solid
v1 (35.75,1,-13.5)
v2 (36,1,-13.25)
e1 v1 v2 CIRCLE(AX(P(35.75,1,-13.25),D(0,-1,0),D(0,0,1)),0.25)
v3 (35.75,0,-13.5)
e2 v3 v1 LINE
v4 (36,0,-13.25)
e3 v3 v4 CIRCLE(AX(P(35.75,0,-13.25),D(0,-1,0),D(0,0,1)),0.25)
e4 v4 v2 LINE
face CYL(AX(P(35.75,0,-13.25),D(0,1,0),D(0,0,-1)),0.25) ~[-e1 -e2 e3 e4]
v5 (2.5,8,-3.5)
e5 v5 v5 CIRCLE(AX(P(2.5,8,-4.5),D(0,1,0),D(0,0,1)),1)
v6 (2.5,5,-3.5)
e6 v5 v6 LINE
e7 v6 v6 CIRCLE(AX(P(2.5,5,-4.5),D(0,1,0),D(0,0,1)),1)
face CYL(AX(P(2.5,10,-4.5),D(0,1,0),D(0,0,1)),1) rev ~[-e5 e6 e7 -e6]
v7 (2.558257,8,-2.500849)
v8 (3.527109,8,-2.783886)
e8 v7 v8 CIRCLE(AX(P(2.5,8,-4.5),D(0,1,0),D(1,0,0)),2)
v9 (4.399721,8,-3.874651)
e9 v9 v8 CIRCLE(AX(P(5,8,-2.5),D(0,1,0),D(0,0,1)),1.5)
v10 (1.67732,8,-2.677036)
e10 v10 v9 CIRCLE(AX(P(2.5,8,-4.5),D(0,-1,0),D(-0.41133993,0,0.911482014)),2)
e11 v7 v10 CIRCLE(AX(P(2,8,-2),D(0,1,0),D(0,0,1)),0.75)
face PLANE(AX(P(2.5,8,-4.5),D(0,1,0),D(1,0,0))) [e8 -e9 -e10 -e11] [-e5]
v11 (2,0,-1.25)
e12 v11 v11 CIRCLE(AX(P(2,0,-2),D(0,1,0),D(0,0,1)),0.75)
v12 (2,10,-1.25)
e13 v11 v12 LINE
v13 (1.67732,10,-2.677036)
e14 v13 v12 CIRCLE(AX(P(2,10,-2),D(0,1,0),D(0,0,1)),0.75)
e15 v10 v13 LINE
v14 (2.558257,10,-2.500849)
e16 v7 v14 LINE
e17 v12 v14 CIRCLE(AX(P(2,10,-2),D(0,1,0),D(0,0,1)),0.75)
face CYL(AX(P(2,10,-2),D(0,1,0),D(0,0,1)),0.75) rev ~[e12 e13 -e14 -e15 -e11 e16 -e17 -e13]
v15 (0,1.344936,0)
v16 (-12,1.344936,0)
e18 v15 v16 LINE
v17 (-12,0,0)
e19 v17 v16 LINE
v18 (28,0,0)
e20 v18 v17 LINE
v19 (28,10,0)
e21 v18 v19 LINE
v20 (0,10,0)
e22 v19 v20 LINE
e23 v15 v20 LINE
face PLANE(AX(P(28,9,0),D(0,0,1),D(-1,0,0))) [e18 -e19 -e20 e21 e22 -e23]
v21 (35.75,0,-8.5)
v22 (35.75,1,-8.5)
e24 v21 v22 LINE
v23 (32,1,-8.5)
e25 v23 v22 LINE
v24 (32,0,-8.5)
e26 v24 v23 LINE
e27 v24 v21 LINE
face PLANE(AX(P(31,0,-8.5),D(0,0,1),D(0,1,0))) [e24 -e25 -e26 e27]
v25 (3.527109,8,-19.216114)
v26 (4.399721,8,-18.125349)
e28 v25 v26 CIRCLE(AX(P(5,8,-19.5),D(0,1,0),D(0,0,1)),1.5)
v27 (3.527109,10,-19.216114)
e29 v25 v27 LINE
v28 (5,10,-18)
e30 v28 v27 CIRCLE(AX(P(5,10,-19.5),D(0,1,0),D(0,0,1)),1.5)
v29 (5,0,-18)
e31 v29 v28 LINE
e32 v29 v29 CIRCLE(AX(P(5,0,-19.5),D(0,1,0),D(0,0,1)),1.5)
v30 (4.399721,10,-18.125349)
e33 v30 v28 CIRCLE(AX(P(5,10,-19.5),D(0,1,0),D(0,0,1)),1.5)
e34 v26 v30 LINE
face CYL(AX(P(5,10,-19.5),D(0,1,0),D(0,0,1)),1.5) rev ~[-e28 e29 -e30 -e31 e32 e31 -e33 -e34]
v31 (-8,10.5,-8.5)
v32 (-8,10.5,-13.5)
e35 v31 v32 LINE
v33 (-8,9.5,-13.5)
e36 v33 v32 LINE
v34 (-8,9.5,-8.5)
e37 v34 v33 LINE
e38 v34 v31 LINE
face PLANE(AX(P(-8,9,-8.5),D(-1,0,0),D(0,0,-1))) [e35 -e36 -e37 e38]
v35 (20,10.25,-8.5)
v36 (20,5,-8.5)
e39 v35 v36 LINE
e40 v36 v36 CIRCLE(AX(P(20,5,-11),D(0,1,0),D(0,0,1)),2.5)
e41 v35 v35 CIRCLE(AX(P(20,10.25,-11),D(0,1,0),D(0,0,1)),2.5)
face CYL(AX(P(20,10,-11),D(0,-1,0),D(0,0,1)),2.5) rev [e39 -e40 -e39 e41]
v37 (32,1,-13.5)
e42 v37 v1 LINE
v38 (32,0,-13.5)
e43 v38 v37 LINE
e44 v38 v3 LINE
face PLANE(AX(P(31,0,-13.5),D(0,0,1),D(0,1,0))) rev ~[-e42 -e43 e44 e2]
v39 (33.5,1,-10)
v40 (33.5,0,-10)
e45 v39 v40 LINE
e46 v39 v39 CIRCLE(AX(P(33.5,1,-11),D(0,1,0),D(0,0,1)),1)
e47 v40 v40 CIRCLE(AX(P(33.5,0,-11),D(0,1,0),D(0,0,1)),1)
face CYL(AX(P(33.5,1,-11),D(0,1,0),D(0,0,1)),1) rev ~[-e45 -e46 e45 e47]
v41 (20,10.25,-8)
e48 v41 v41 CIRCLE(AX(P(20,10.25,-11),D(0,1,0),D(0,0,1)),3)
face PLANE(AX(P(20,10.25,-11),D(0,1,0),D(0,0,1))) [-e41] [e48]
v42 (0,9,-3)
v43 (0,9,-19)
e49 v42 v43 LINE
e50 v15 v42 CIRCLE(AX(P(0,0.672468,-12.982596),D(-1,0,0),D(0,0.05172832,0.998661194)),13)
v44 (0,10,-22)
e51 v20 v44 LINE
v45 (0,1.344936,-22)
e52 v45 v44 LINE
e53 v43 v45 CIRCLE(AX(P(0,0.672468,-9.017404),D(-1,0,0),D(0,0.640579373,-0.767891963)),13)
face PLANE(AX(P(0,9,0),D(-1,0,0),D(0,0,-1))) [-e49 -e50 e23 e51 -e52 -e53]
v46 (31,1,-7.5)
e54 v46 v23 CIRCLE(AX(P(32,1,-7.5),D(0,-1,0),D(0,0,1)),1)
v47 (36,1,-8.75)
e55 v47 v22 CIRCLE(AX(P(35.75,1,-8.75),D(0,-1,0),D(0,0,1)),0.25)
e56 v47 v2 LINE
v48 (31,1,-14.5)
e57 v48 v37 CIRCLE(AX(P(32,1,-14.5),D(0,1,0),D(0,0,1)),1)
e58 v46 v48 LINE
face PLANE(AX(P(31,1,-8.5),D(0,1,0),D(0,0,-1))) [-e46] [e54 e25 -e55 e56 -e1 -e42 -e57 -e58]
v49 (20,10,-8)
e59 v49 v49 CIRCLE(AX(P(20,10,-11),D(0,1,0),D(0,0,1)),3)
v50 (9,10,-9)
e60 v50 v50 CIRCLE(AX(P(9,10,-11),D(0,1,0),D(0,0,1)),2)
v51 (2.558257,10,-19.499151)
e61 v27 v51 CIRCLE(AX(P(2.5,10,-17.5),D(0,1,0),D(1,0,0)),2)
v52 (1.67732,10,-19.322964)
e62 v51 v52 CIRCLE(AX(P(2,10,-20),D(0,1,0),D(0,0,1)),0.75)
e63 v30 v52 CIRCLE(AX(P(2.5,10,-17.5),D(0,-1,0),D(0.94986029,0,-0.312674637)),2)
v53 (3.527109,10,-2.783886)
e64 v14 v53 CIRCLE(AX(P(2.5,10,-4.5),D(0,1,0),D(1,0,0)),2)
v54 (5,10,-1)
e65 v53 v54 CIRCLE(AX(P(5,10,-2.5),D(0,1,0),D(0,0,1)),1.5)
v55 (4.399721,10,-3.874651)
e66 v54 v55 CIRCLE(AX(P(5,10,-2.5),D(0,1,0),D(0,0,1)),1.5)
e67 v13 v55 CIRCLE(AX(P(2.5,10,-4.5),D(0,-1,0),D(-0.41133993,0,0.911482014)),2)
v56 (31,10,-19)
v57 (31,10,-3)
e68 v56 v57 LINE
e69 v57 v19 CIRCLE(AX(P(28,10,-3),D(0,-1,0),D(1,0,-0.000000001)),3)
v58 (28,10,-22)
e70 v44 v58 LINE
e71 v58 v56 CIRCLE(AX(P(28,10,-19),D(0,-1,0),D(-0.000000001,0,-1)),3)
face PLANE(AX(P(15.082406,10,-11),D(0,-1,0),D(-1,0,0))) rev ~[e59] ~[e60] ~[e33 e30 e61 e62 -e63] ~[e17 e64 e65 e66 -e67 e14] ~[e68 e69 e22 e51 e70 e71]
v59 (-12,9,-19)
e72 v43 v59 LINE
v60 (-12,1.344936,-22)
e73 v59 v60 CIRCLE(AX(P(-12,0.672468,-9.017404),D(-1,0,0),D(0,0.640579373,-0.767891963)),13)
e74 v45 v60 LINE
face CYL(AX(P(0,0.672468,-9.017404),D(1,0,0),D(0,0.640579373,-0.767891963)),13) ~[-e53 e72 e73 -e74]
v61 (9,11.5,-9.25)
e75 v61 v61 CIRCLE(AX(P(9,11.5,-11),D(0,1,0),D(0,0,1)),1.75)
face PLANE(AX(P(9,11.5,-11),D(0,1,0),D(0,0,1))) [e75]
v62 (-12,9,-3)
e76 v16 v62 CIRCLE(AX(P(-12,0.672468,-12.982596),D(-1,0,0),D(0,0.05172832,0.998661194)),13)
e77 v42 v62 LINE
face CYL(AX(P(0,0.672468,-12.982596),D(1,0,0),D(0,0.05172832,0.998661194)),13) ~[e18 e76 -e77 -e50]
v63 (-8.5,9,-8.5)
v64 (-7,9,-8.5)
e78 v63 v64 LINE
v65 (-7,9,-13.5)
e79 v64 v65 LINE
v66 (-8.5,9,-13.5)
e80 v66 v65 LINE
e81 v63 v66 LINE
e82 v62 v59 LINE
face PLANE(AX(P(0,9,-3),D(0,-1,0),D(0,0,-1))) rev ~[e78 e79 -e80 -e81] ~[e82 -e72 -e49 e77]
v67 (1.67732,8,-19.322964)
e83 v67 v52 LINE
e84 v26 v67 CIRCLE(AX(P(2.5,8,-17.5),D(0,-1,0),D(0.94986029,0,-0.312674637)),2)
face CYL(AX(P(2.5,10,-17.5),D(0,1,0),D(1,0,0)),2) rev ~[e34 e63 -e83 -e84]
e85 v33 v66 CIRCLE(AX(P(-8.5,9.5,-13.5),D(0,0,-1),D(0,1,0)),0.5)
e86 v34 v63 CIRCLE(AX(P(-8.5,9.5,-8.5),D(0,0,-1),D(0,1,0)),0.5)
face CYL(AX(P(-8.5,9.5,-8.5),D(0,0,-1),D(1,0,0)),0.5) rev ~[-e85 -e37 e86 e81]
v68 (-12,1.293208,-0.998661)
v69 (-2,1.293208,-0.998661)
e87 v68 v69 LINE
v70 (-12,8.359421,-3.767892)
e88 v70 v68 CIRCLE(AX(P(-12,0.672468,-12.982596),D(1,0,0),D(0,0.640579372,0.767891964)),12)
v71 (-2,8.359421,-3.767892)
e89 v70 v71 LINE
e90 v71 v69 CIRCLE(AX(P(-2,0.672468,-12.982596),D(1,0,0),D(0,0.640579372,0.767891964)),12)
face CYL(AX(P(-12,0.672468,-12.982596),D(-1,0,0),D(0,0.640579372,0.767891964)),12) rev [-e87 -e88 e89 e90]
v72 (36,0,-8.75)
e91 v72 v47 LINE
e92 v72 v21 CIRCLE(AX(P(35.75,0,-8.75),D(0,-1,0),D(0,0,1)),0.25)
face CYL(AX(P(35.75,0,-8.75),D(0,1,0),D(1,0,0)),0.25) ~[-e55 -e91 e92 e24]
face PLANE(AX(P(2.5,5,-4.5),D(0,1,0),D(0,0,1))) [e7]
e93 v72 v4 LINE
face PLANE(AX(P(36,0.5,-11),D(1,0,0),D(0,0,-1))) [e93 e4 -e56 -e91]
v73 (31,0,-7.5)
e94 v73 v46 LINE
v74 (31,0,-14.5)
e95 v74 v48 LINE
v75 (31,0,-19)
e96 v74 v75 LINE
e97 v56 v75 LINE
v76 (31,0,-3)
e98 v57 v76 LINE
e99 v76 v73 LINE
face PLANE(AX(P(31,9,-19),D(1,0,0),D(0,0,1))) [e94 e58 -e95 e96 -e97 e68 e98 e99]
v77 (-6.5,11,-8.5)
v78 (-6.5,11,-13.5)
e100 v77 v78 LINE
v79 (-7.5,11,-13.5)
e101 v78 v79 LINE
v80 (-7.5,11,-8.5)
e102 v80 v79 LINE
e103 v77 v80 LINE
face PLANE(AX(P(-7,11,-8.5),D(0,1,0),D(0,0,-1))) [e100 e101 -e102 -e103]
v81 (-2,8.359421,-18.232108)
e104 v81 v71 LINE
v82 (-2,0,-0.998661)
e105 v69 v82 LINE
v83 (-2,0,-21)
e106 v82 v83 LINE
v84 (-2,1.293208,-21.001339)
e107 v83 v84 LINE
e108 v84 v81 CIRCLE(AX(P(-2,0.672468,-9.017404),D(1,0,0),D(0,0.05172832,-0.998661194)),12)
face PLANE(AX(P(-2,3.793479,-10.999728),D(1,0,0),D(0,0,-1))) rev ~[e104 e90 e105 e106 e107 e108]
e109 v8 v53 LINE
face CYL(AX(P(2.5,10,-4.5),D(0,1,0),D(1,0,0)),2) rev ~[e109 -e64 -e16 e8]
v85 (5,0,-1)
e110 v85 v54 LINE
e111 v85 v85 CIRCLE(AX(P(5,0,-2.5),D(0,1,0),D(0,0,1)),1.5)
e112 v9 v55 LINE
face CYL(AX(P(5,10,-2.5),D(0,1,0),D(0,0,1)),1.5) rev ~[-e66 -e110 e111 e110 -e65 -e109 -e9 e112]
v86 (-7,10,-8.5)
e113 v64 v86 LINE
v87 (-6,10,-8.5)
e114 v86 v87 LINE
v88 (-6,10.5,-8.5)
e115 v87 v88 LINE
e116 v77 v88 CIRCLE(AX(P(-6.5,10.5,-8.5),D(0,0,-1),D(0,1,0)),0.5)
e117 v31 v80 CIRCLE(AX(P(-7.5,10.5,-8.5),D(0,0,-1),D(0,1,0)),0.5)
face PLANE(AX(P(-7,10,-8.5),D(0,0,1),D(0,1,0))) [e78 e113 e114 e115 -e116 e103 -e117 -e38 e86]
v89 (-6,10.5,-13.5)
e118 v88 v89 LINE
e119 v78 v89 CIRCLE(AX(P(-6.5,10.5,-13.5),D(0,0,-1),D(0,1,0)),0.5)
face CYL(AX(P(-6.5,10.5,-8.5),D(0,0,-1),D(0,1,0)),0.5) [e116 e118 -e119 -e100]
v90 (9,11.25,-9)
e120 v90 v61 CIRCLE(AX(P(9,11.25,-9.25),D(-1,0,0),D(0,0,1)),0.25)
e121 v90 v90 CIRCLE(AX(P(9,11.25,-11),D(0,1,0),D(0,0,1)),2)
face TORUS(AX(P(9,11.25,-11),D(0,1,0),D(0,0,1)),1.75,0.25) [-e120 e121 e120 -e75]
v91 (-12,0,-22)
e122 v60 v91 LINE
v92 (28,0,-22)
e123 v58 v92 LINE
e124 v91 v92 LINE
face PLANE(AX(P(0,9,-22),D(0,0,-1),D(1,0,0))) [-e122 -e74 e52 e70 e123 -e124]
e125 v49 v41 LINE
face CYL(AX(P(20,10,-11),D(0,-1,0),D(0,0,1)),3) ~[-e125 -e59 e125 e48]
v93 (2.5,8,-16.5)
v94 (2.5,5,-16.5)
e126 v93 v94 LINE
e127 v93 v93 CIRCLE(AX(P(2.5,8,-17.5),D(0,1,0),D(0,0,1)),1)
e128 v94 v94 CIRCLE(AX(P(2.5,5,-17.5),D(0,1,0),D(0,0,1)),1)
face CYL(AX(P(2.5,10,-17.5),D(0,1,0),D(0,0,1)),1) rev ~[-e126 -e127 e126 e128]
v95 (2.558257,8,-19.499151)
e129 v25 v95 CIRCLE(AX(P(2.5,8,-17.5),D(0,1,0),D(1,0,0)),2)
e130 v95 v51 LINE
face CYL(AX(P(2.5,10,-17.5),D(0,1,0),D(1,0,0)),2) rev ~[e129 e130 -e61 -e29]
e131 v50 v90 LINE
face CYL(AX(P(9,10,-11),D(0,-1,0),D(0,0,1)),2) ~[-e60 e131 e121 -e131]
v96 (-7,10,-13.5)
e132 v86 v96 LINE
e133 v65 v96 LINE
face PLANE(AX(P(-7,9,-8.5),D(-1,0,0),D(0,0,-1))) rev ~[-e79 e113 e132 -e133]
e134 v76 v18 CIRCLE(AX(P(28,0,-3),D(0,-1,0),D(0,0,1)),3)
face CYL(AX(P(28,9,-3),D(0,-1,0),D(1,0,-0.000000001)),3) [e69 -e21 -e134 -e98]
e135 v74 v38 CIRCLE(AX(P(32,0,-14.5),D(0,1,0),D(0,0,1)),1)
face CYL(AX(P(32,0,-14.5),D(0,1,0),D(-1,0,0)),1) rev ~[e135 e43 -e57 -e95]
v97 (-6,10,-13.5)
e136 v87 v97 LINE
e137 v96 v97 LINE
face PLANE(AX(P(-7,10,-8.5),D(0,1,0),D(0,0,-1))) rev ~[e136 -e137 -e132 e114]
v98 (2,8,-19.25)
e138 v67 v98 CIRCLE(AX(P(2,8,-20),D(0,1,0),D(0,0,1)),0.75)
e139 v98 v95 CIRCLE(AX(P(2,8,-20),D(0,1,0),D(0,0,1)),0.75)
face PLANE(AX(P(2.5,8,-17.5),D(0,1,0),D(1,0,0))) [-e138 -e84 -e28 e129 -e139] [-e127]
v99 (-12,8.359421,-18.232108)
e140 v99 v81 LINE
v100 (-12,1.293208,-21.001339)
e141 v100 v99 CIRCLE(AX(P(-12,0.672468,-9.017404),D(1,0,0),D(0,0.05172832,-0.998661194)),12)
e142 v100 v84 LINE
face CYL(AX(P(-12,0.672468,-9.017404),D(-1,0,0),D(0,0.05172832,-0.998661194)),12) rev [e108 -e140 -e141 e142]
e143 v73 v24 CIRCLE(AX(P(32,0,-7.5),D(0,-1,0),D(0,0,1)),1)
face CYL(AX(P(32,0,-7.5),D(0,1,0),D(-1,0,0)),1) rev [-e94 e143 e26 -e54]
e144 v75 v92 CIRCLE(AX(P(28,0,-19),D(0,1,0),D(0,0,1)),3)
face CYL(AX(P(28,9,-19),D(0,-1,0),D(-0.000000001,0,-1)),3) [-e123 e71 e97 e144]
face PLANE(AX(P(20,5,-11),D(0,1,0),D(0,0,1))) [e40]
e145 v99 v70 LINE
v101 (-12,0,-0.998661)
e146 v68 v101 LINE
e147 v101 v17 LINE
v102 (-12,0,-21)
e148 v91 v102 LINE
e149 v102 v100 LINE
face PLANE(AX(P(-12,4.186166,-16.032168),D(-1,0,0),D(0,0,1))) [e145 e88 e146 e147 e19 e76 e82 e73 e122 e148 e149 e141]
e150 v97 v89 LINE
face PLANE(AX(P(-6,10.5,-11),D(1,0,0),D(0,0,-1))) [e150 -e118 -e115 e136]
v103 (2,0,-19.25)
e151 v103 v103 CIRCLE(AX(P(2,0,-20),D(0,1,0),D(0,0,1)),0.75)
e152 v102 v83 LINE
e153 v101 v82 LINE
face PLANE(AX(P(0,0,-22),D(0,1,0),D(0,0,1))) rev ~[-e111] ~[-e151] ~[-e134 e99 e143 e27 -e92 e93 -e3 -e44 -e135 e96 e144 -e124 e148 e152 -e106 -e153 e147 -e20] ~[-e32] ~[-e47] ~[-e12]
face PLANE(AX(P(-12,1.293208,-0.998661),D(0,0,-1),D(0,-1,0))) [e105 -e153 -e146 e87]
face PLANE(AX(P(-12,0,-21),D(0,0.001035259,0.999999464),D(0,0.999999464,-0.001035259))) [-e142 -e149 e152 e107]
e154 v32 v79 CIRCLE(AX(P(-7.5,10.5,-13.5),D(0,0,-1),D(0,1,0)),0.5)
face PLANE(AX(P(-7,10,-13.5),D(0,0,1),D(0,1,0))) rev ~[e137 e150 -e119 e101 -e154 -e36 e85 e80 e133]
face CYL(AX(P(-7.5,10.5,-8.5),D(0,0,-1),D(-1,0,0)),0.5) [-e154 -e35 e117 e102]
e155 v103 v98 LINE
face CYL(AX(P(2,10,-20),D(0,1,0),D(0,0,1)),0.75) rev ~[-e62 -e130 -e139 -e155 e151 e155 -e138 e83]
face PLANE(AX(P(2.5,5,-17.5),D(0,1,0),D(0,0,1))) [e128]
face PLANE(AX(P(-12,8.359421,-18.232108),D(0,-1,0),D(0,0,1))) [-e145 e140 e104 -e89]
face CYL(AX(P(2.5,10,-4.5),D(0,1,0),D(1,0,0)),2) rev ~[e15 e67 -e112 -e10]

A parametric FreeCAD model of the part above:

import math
import FreeCAD as App
import Part
import Sketcher


def edges_at(feature, points):
    """Names of the edges that pass closest to the given points."""
    edges = feature.Shape.Edges
    near = lambda p: min(range(len(edges)), key=lambda i: edges[i].distToShape(Part.Vertex(*p))[0])
    return sorted({f"Edge{near(p) + 1}" for p in points})

doc = App.newDocument("Part")
body = doc.addObject("PartDesign::Body", "Body")

# Sketch on XZ plane
sketch1 = doc.addObject("Sketcher::SketchObject", "Sketch")
body.addObject(sketch1)
sketch1.AttachmentSupport = (doc.XZ_Plane, [""])
sketch1.MapMode = "FlatFace"
sketch1.addGeometry([
    Part.LineSegment(App.Vector(31, -22, 0), App.Vector(0, -22, 0)),
    Part.LineSegment(App.Vector(0, -22, 0), App.Vector(0, 0, 0)),
    Part.LineSegment(App.Vector(0, 0, 0), App.Vector(31, 0, 0)),
    Part.LineSegment(App.Vector(31, 0, 0), App.Vector(31, -22, 0)),
], False)
sketch1.addConstraint([
    Sketcher.Constraint("Coincident", 0, 2, 1, 1),
    Sketcher.Constraint("Coincident", 1, 2, 2, 1),
    Sketcher.Constraint("Coincident", 2, 2, 3, 1),
    Sketcher.Constraint("Coincident", 3, 2, 0, 1),
    Sketcher.Constraint("Horizontal", 0),
    Sketcher.Constraint("Vertical", 1),
    Sketcher.Constraint("Horizontal", 2),
    Sketcher.Constraint("Vertical", 3),
    Sketcher.Constraint("Coincident", 1, 2, -1, 1),
    Sketcher.Constraint("DistanceX", 0, 2, 0, 1, 31.0),
    Sketcher.Constraint("DistanceY", 1, 1, 1, 2, 22.0),
])
pad1 = doc.addObject("PartDesign::Pad", "Pad")
body.addObject(pad1)
pad1.Profile = sketch1
pad1.Length = 9
pad1.Reversed = True

# Sketch on YZ plane
sketch2 = doc.addObject("Sketcher::SketchObject", "Sketch001")
body.addObject(sketch2)
sketch2.AttachmentSupport = (doc.YZ_Plane, [""])
sketch2.MapMode = "FlatFace"
sketch2.AttachmentOffset = App.Placement(App.Vector(0, 0, 31), App.Rotation())
sketch2.addGeometry([
    Part.LineSegment(App.Vector(1, -8.5, 0), App.Vector(0, -8.5, 0)),
    Part.LineSegment(App.Vector(0, -8.5, 0), App.Vector(0, -13.5, 0)),
    Part.LineSegment(App.Vector(0, -13.5, 0), App.Vector(1, -13.5, 0)),
    Part.LineSegment(App.Vector(1, -13.5, 0), App.Vector(1, -8.5, 0)),
], False)
sketch2.addConstraint([
    Sketcher.Constraint("Coincident", 0, 2, 1, 1),
    Sketcher.Constraint("Coincident", 1, 2, 2, 1),
    Sketcher.Constraint("Coincident", 2, 2, 3, 1),
    Sketcher.Constraint("Coincident", 3, 2, 0, 1),
    Sketcher.Constraint("Horizontal", 0),
    Sketcher.Constraint("Vertical", 1),
    Sketcher.Constraint("Horizontal", 2),
    Sketcher.Constraint("Vertical", 3),
    Sketcher.Constraint("PointOnObject", 0, 2, -2),
    Sketcher.Constraint("DistanceX", 0, 2, 0, 1, 1.0),
    Sketcher.Constraint("DistanceY", 1, 2, 1, 1, 5.0),
    Sketcher.Constraint("DistanceY", 0, 2, -1, 1, 8.5),
])
pad2 = doc.addObject("PartDesign::Pad", "Pad001")
body.addObject(pad2)
pad2.Profile = sketch2
pad2.Length = 5

# Sketch on XZ plane
sketch3 = doc.addObject("Sketcher::SketchObject", "Sketch002")
body.addObject(sketch3)
sketch3.AttachmentSupport = (doc.XZ_Plane, [""])
sketch3.MapMode = "FlatFace"
sketch3.AttachmentOffset = App.Placement(App.Vector(0, 0, -1), App.Rotation())
sketch3.addGeometry(Part.Circle(App.Vector(33.5, -11, 0), App.Vector(0, 0, 1), 1), False)
sketch3.addConstraint([
    Sketcher.Constraint("Diameter", 0, 2.0),
    Sketcher.Constraint("DistanceY", 0, 3, -1, 1, 11.0),
    Sketcher.Constraint("DistanceX", -1, 1, 0, 3, 33.5),
])
pocket1 = doc.addObject("PartDesign::Pocket", "Pocket")
body.addObject(pocket1)
pocket1.Profile = sketch3
pocket1.Length = 5
pocket1.Reversed = True
doc.recompute()

fillet = doc.addObject("PartDesign::Fillet", "Fillet")
body.addObject(fillet)
fillet.Base = (pocket1, edges_at(pocket1, [(31, 0.5, -8.5)]))
fillet.Radius = 1
doc.recompute()

fillet2 = doc.addObject("PartDesign::Fillet", "Fillet001")
body.addObject(fillet2)
fillet2.Base = (fillet, edges_at(fillet, [(31, 0.5, -13.5)]))
fillet2.Radius = 1
doc.recompute()

fillet3 = doc.addObject("PartDesign::Fillet", "Fillet002")
body.addObject(fillet3)
fillet3.Base = (fillet2, edges_at(fillet2, [(31, 4.5, 0)]))
fillet3.Radius = 3
doc.recompute()

fillet4 = doc.addObject("PartDesign::Fillet", "Fillet003")
body.addObject(fillet4)
fillet4.Base = (fillet3, edges_at(fillet3, [(31, 4.5, -22)]))
fillet4.Radius = 3

# Sketch on YZ plane
sketch4 = doc.addObject("Sketcher::SketchObject", "Sketch003")
body.addObject(sketch4)
sketch4.AttachmentSupport = (doc.YZ_Plane, [""])
sketch4.MapMode = "FlatFace"
sketch4.addGeometry([
    Part.LineSegment(App.Vector(0, -22, 0), App.Vector(0, 0, 0)),  # 0
    Part.LineSegment(App.Vector(0, 0, 0), App.Vector(1.344936, 0, 0)),  # 1
    Part.ArcOfCircle(Part.Circle(App.Vector(0.672468, -12.982596, 0), App.Vector(0, 0, 1), 13), math.radians(50.164965), math.radians(87.034862)),  # 2
    Part.LineSegment(App.Vector(9, -3, 0), App.Vector(9, -19, 0)),  # 3
    Part.ArcOfCircle(Part.Circle(App.Vector(0.672468, -9.017404, 0), App.Vector(0, 0, 1), 13), math.radians(-87.034862), math.radians(-50.164965)),  # 4
    Part.LineSegment(App.Vector(1.344936, -22, 0), App.Vector(0, -22, 0)),  # 5
], False)
sketch4.addConstraint([
    Sketcher.Constraint("Coincident", 0, 2, 1, 1),
    Sketcher.Constraint("Coincident", 1, 2, 2, 2),
    Sketcher.Constraint("Coincident", 2, 1, 3, 1),
    Sketcher.Constraint("Coincident", 3, 2, 4, 2),
    Sketcher.Constraint("Coincident", 4, 1, 5, 1),
    Sketcher.Constraint("Coincident", 5, 2, 0, 1),
    Sketcher.Constraint("Vertical", 0),
    Sketcher.Constraint("Horizontal", 1),
    Sketcher.Constraint("Vertical", 3),
    Sketcher.Constraint("Horizontal", 5),
    Sketcher.Constraint("Coincident", 0, 2, -1, 1),
    Sketcher.Constraint("Equal", 2, 4),
    Sketcher.Constraint("Vertical", 2, 3, 4, 3),
    Sketcher.Constraint("Vertical", 1, 2, 4, 1),
    Sketcher.Constraint("Radius", 2, 13.0),
    Sketcher.Constraint("DistanceY", 0, 1, 0, 2, 22.0),
    Sketcher.Constraint("DistanceY", 3, 2, 3, 1, 16.0),
    Sketcher.Constraint("DistanceX", -1, 1, 2, 1, 9.0),
    Sketcher.Constraint("DistanceX", 1, 1, 1, 2, 1.344936),
])
pad3 = doc.addObject("PartDesign::Pad", "Pad002")
body.addObject(pad3)
pad3.Profile = sketch4
pad3.Length = 12
pad3.Reversed = True
doc.recompute()

fillet5 = doc.addObject("PartDesign::Fillet", "Fillet004")
body.addObject(fillet5)
fillet5.Base = (pad3, edges_at(pad3, [(36, 0.5, -13.5), (36, 0.5, -8.5)]))
fillet5.Radius = 0.25

# Sketch on XZ plane
sketch5 = doc.addObject("Sketcher::SketchObject", "Sketch004")
body.addObject(sketch5)
sketch5.AttachmentSupport = (doc.XZ_Plane, [""])
sketch5.MapMode = "FlatFace"
sketch5.AttachmentOffset = App.Placement(App.Vector(0, 0, -9), App.Rotation())
sketch5.addGeometry([
    Part.Circle(App.Vector(5, -19.5, 0), App.Vector(0, 0, 1), 1.5),
    Part.Circle(App.Vector(5, -2.5, 0), App.Vector(0, 0, 1), 1.5),
], False)
sketch5.addConstraint([
    Sketcher.Constraint("Equal", 0, 1),
    Sketcher.Constraint("Vertical", 0, 3, 1, 3),
    Sketcher.Constraint("Diameter", 0, 3.0),
    Sketcher.Constraint("DistanceX", -1, 1, 0, 3, 5.0),
    Sketcher.Constraint("DistanceY", 0, 3, 1, 3, 17.0),
    Sketcher.Constraint("DistanceY", 0, 3, -1, 1, 19.5),
])
pocket2 = doc.addObject("PartDesign::Pocket", "Pocket001")
body.addObject(pocket2)
pocket2.Profile = sketch5
pocket2.Type = "ThroughAll"
pocket2.Midplane = True

# Sketch on XZ plane
sketch6 = doc.addObject("Sketcher::SketchObject", "Sketch005")
body.addObject(sketch6)
sketch6.AttachmentSupport = (doc.XZ_Plane, [""])
sketch6.MapMode = "FlatFace"
sketch6.AttachmentOffset = App.Placement(App.Vector(0, 0, -9), App.Rotation())
sketch6.addGeometry([
    Part.Circle(App.Vector(2, -2, 0), App.Vector(0, 0, 1), 0.75),
    Part.Circle(App.Vector(2, -20, 0), App.Vector(0, 0, 1), 0.75),
], False)
sketch6.addConstraint([
    Sketcher.Constraint("Equal", 0, 1),
    Sketcher.Constraint("Vertical", 0, 3, 1, 3),
    Sketcher.Constraint("Diameter", 0, 1.5),
    Sketcher.Constraint("DistanceX", -1, 1, 0, 3, 2.0),
    Sketcher.Constraint("DistanceY", 0, 3, -1, 1, 2.0),
    Sketcher.Constraint("DistanceY", 1, 3, -1, 1, 20.0),
])
pocket3 = doc.addObject("PartDesign::Pocket", "Pocket002")
body.addObject(pocket3)
pocket3.Profile = sketch6
pocket3.Length = 3
pocket3.Reversed = True

# Sketch on XZ plane
sketch7 = doc.addObject("Sketcher::SketchObject", "Sketch006")
body.addObject(sketch7)
sketch7.AttachmentSupport = (doc.XZ_Plane, [""])
sketch7.MapMode = "FlatFace"
sketch7.AttachmentOffset = App.Placement(App.Vector(0, 0, -9), App.Rotation())
sketch7.addGeometry([
    Part.LineSegment(App.Vector(-8, -13.5, 0), App.Vector(-8, -8.5, 0)),
    Part.LineSegment(App.Vector(-8, -8.5, 0), App.Vector(-7, -8.5, 0)),
    Part.LineSegment(App.Vector(-7, -8.5, 0), App.Vector(-7, -13.5, 0)),
    Part.LineSegment(App.Vector(-7, -13.5, 0), App.Vector(-8, -13.5, 0)),
], False)
sketch7.addConstraint([
    Sketcher.Constraint("Coincident", 0, 2, 1, 1),
    Sketcher.Constraint("Coincident", 1, 2, 2, 1),
    Sketcher.Constraint("Coincident", 2, 2, 3, 1),
    Sketcher.Constraint("Coincident", 3, 2, 0, 1),
    Sketcher.Constraint("Vertical", 0),
    Sketcher.Constraint("Horizontal", 1),
    Sketcher.Constraint("Vertical", 2),
    Sketcher.Constraint("Horizontal", 3),
    Sketcher.Constraint("DistanceX", 1, 1, 1, 2, 1.0),
    Sketcher.Constraint("DistanceY", 0, 1, 0, 2, 5.0),
    Sketcher.Constraint("DistanceX", 0, 2, -1, 1, 8.0),
    Sketcher.Constraint("DistanceY", 0, 2, -1, 1, 8.5),
])
pad4 = doc.addObject("PartDesign::Pad", "Pad003")
body.addObject(pad4)
pad4.Profile = sketch7
pad4.Length = 2
pad4.Reversed = True

# Sketch on YZ plane
sketch8 = doc.addObject("Sketcher::SketchObject", "Sketch007")
body.addObject(sketch8)
sketch8.AttachmentSupport = (doc.YZ_Plane, [""])
sketch8.MapMode = "FlatFace"
sketch8.AttachmentOffset = App.Placement(App.Vector(0, 0, -7), App.Rotation())
sketch8.addGeometry([
    Part.LineSegment(App.Vector(11, -8.5, 0), App.Vector(10, -8.5, 0)),
    Part.LineSegment(App.Vector(10, -8.5, 0), App.Vector(10, -13.5, 0)),
    Part.LineSegment(App.Vector(10, -13.5, 0), App.Vector(11, -13.5, 0)),
    Part.LineSegment(App.Vector(11, -13.5, 0), App.Vector(11, -8.5, 0)),
], False)
sketch8.addConstraint([
    Sketcher.Constraint("Coincident", 0, 2, 1, 1),
    Sketcher.Constraint("Coincident", 1, 2, 2, 1),
    Sketcher.Constraint("Coincident", 2, 2, 3, 1),
    Sketcher.Constraint("Coincident", 3, 2, 0, 1),
    Sketcher.Constraint("Horizontal", 0),
    Sketcher.Constraint("Vertical", 1),
    Sketcher.Constraint("Horizontal", 2),
    Sketcher.Constraint("Vertical", 3),
    Sketcher.Constraint("DistanceX", 0, 2, 0, 1, 1.0),
    Sketcher.Constraint("DistanceY", 1, 2, 1, 1, 5.0),
    Sketcher.Constraint("DistanceX", -1, 1, 0, 2, 10.0),
    Sketcher.Constraint("DistanceY", 0, 2, -1, 1, 8.5),
])
pad5 = doc.addObject("PartDesign::Pad", "Pad004")
body.addObject(pad5)
pad5.Profile = sketch8
pad5.Length = 1
doc.recompute()

fillet6 = doc.addObject("PartDesign::Fillet", "Fillet005")
body.addObject(fillet6)
fillet6.Base = (pad5, edges_at(pad5, [(-8, 11, -11)]))
fillet6.Radius = 0.5
doc.recompute()

fillet7 = doc.addObject("PartDesign::Fillet", "Fillet006")
body.addObject(fillet7)
fillet7.Base = (fillet6, edges_at(fillet6, [(-8, 9, -11)]))
fillet7.Radius = 0.5
doc.recompute()

fillet8 = doc.addObject("PartDesign::Fillet", "Fillet007")
body.addObject(fillet8)
fillet8.Base = (fillet7, edges_at(fillet7, [(-6, 11, -11)]))
fillet8.Radius = 0.5

# Sketch on YZ plane
sketch9 = doc.addObject("Sketcher::SketchObject", "Sketch008")
body.addObject(sketch9)
sketch9.AttachmentSupport = (doc.YZ_Plane, [""])
sketch9.MapMode = "FlatFace"
sketch9.AttachmentOffset = App.Placement(App.Vector(0, 0, -12), App.Rotation())
sketch9.addGeometry([
    Part.LineSegment(App.Vector(8.359421, -3.767892, 0), App.Vector(8.359421, -18.232108, 0)),  # 0
    Part.ArcOfCircle(Part.Circle(App.Vector(0.672468, -9.017404, 0), App.Vector(0, 0, 1), 12), math.radians(-87.034862), math.radians(-50.164965)),  # 1
    Part.LineSegment(App.Vector(1.293208, -21.001339, 0), App.Vector(0, -21, 0)),  # 2
    Part.LineSegment(App.Vector(0, -21, 0), App.Vector(0, -0.998661, 0)),  # 3
    Part.LineSegment(App.Vector(0, -0.998661, 0), App.Vector(1.293208, -0.998661, 0)),  # 4
    Part.ArcOfCircle(Part.Circle(App.Vector(0.672468, -12.982596, 0), App.Vector(0, 0, 1), 12), math.radians(50.164965), math.radians(87.034862)),  # 5
], False)
sketch9.addConstraint([
    Sketcher.Constraint("Coincident", 0, 2, 1, 2),
    Sketcher.Constraint("Coincident", 1, 1, 2, 1),
    Sketcher.Constraint("Coincident", 2, 2, 3, 1),
    Sketcher.Constraint("Coincident", 3, 2, 4, 1),
    Sketcher.Constraint("Coincident", 4, 2, 5, 2),
    Sketcher.Constraint("Coincident", 5, 1, 0, 1),
    Sketcher.Constraint("Vertical", 0),
    Sketcher.Constraint("Vertical", 3),
    Sketcher.Constraint("Horizontal", 4),
    Sketcher.Constraint("Equal", 1, 5),
    Sketcher.Constraint("PointOnObject", 2, 2, -2),
    Sketcher.Constraint("Vertical", 1, 3, 5, 3),
    Sketcher.Constraint("Vertical", 1, 1, 4, 2),
    Sketcher.Constraint("Radius", 1, 12.0),
    Sketcher.Constraint("DistanceY", 2, 2, -1, 1, 21.0),
    Sketcher.Constraint("DistanceY", 3, 1, 3, 2, 20.001339),
    Sketcher.Constraint("Distance", 2, 1.293209),
    Sketcher.Constraint("DistanceY", 0, 2, 0, 1, 14.464216),
    Sketcher.Constraint("DistanceX", -1, 1, 1, 3, 0.672468),
    Sketcher.Constraint("DistanceX", -1, 1, 0, 2, 8.359421),
])
pocket4 = doc.addObject("PartDesign::Pocket", "Pocket003")
body.addObject(pocket4)
pocket4.Profile = sketch9
pocket4.Length = 10
pocket4.Reversed = True

# Sketch on XZ plane
sketch10 = doc.addObject("Sketcher::SketchObject", "Sketch009")
body.addObject(sketch10)
sketch10.AttachmentSupport = (doc.XZ_Plane, [""])
sketch10.MapMode = "FlatFace"
sketch10.AttachmentOffset = App.Placement(App.Vector(0, 0, -9), App.Rotation())
sketch10.addGeometry([
    Part.LineSegment(App.Vector(28, -22, 0), App.Vector(0, -22, 0)),  # 0
    Part.LineSegment(App.Vector(0, -22, 0), App.Vector(0, 0, 0)),  # 1
    Part.LineSegment(App.Vector(0, 0, 0), App.Vector(28, 0, 0)),  # 2
    Part.ArcOfCircle(Part.Circle(App.Vector(28, -3, 0), App.Vector(0, 0, 1), 3), math.radians(0), math.radians(90)),  # 3
    Part.LineSegment(App.Vector(31, -3, 0), App.Vector(31, -19, 0)),  # 4
    Part.ArcOfCircle(Part.Circle(App.Vector(28, -19, 0), App.Vector(0, 0, 1), 3), math.radians(-90), math.radians(0)),  # 5
], False)
sketch10.addConstraint([
    Sketcher.Constraint("Coincident", 0, 2, 1, 1),
    Sketcher.Constraint("Coincident", 1, 2, 2, 1),
    Sketcher.Constraint("Tangent", 2, 2, 3, 2),
    Sketcher.Constraint("Tangent", 3, 1, 4, 1),
    Sketcher.Constraint("Tangent", 4, 2, 5, 2),
    Sketcher.Constraint("Tangent", 5, 1, 0, 1),
    Sketcher.Constraint("Horizontal", 0),
    Sketcher.Constraint("Vertical", 1),
    Sketcher.Constraint("Horizontal", 2),
    Sketcher.Constraint("Vertical", 4),
    Sketcher.Constraint("Coincident", 1, 2, -1, 1),
    Sketcher.Constraint("Equal", 3, 5),
    Sketcher.Constraint("Radius", 3, 3.0),
    Sketcher.Constraint("DistanceX", 0, 2, 0, 1, 28.0),
    Sketcher.Constraint("DistanceY", 1, 1, 1, 2, 22.0),
])
pad6 = doc.addObject("PartDesign::Pad", "Pad005")
body.addObject(pad6)
pad6.Profile = sketch10
pad6.Length = 1
pad6.Reversed = True

# Sketch on XZ plane
sketch11 = doc.addObject("Sketcher::SketchObject", "Sketch010")
body.addObject(sketch11)
sketch11.AttachmentSupport = (doc.XZ_Plane, [""])
sketch11.MapMode = "FlatFace"
sketch11.AttachmentOffset = App.Placement(App.Vector(0, 0, -10), App.Rotation())
sketch11.addGeometry([
    Part.Circle(App.Vector(5, -19.5, 0), App.Vector(0, 0, 1), 1.5),
    Part.Circle(App.Vector(5, -2.5, 0), App.Vector(0, 0, 1), 1.5),
], False)
sketch11.addConstraint([
    Sketcher.Constraint("Equal", 0, 1),
    Sketcher.Constraint("Vertical", 0, 3, 1, 3),
    Sketcher.Constraint("Diameter", 0, 3.0),
    Sketcher.Constraint("DistanceX", -1, 1, 0, 3, 5.0),
    Sketcher.Constraint("DistanceY", 0, 3, 1, 3, 17.0),
    Sketcher.Constraint("DistanceY", 0, 3, -1, 1, 19.5),
])
pocket5 = doc.addObject("PartDesign::Pocket", "Pocket004")
body.addObject(pocket5)
pocket5.Profile = sketch11
pocket5.Type = "ThroughAll"
pocket5.Reversed = True

# Sketch on XZ plane
sketch12 = doc.addObject("Sketcher::SketchObject", "Sketch011")
body.addObject(sketch12)
sketch12.AttachmentSupport = (doc.XZ_Plane, [""])
sketch12.MapMode = "FlatFace"
sketch12.AttachmentOffset = App.Placement(App.Vector(0, 0, -10), App.Rotation())
sketch12.addGeometry([
    Part.Circle(App.Vector(2, -20, 0), App.Vector(0, 0, 1), 0.75),
    Part.Circle(App.Vector(2, -2, 0), App.Vector(0, 0, 1), 0.75),
], False)
sketch12.addConstraint([
    Sketcher.Constraint("Equal", 0, 1),
    Sketcher.Constraint("Vertical", 0, 3, 1, 3),
    Sketcher.Constraint("Diameter", 0, 1.5),
    Sketcher.Constraint("DistanceX", -1, 1, 0, 3, 2.0),
    Sketcher.Constraint("DistanceY", 0, 3, -1, 1, 20.0),
    Sketcher.Constraint("DistanceY", 1, 3, -1, 1, 2.0),
])
pocket6 = doc.addObject("PartDesign::Pocket", "Pocket005")
body.addObject(pocket6)
pocket6.Profile = sketch12
pocket6.Type = "ThroughAll"
pocket6.Reversed = True

# Sketch on XZ plane
sketch13 = doc.addObject("Sketcher::SketchObject", "Sketch012")
body.addObject(sketch13)
sketch13.AttachmentSupport = (doc.XZ_Plane, [""])
sketch13.MapMode = "FlatFace"
sketch13.AttachmentOffset = App.Placement(App.Vector(0, 0, -10), App.Rotation())
sketch13.addGeometry(Part.Circle(App.Vector(9, -11, 0), App.Vector(0, 0, 1), 2), False)
sketch13.addConstraint([
    Sketcher.Constraint("Diameter", 0, 4.0),
    Sketcher.Constraint("DistanceX", -1, 1, 0, 3, 9.0),
    Sketcher.Constraint("DistanceY", 0, 3, -1, 1, 11.0),
])
pad7 = doc.addObject("PartDesign::Pad", "Pad006")
body.addObject(pad7)
pad7.Profile = sketch13
pad7.Length = 1.5
pad7.Reversed = True
doc.recompute()

fillet9 = doc.addObject("PartDesign::Fillet", "Fillet008")
body.addObject(fillet9)
fillet9.Base = (pad7, edges_at(pad7, [(9, 11.5, -13)]))
fillet9.Radius = 0.25

# Sketch on XZ plane
sketch14 = doc.addObject("Sketcher::SketchObject", "Sketch013")
body.addObject(sketch14)
sketch14.AttachmentSupport = (doc.XZ_Plane, [""])
sketch14.MapMode = "FlatFace"
sketch14.AttachmentOffset = App.Placement(App.Vector(0, 0, -10), App.Rotation())
sketch14.addGeometry(Part.Circle(App.Vector(20, -11, 0), App.Vector(0, 0, 1), 2.5), False)
sketch14.addConstraint([
    Sketcher.Constraint("Diameter", 0, 5.0),
    Sketcher.Constraint("DistanceX", -1, 1, 0, 3, 20.0),
    Sketcher.Constraint("DistanceY", 0, 3, -1, 1, 11.0),
])
pocket7 = doc.addObject("PartDesign::Pocket", "Pocket006")
body.addObject(pocket7)
pocket7.Profile = sketch14
pocket7.Length = 5
pocket7.Reversed = True

# Sketch on XZ plane
sketch15 = doc.addObject("Sketcher::SketchObject", "Sketch014")
body.addObject(sketch15)
sketch15.AttachmentSupport = (doc.XZ_Plane, [""])
sketch15.MapMode = "FlatFace"
sketch15.AttachmentOffset = App.Placement(App.Vector(0, 0, -10), App.Rotation())
sketch15.addGeometry([
    Part.Circle(App.Vector(20, -11, 0), App.Vector(0, 0, 1), 3),
    Part.Circle(App.Vector(20, -11, 0), App.Vector(0, 0, 1), 2.5),
], False)
sketch15.addConstraint([
    Sketcher.Constraint("Coincident", 1, 3, 0, 3),
    Sketcher.Constraint("Diameter", 0, 6.0),
    Sketcher.Constraint("Diameter", 1, 5.0),
    Sketcher.Constraint("DistanceX", -1, 1, 0, 3, 20.0),
    Sketcher.Constraint("DistanceY", 0, 3, -1, 1, 11.0),
])
pad8 = doc.addObject("PartDesign::Pad", "Pad007")
body.addObject(pad8)
pad8.Profile = sketch15
pad8.Length = 0.25
pad8.Reversed = True

# Sketch on XZ plane
sketch16 = doc.addObject("Sketcher::SketchObject", "Sketch015")
body.addObject(sketch16)
sketch16.AttachmentSupport = (doc.XZ_Plane, [""])
sketch16.MapMode = "FlatFace"
sketch16.AttachmentOffset = App.Placement(App.Vector(0, 0, -10), App.Rotation())
sketch16.addGeometry([
    Part.Circle(App.Vector(2.5, -17.5, 0), App.Vector(0, 0, 1), 2),
    Part.Circle(App.Vector(2.5, -4.5, 0), App.Vector(0, 0, 1), 2),
], False)
sketch16.addConstraint([
    Sketcher.Constraint("Equal", 0, 1),
    Sketcher.Constraint("Vertical", 0, 3, 1, 3),
    Sketcher.Constraint("Diameter", 0, 4.0),
    Sketcher.Constraint("DistanceY", 0, 3, 1, 3, 13.0),
    Sketcher.Constraint("DistanceX", -1, 1, 0, 3, 2.5),
    Sketcher.Constraint("DistanceY", 0, 3, -1, 1, 17.5),
])
pocket8 = doc.addObject("PartDesign::Pocket", "Pocket007")
body.addObject(pocket8)
pocket8.Profile = sketch16
pocket8.Length = 2
pocket8.Reversed = True

# Sketch on XZ plane
sketch17 = doc.addObject("Sketcher::SketchObject", "Sketch016")
body.addObject(sketch17)
sketch17.AttachmentSupport = (doc.XZ_Plane, [""])
sketch17.MapMode = "FlatFace"
sketch17.AttachmentOffset = App.Placement(App.Vector(0, 0, -10), App.Rotation())
sketch17.addGeometry([
    Part.Circle(App.Vector(2.5, -17.5, 0), App.Vector(0, 0, 1), 1),
    Part.Circle(App.Vector(2.5, -4.5, 0), App.Vector(0, 0, 1), 1),
], False)
sketch17.addConstraint([
    Sketcher.Constraint("Equal", 0, 1),
    Sketcher.Constraint("Vertical", 0, 3, 1, 3),
    Sketcher.Constraint("Diameter", 0, 2.0),
    Sketcher.Constraint("DistanceY", 0, 3, 1, 3, 13.0),
    Sketcher.Constraint("DistanceX", -1, 1, 0, 3, 2.5),
    Sketcher.Constraint("DistanceY", 0, 3, -1, 1, 17.5),
])
pocket9 = doc.addObject("PartDesign::Pocket", "Pocket008")
body.addObject(pocket9)
pocket9.Profile = sketch17
pocket9.Length = 5
pocket9.Reversed = True

doc.recompute()
